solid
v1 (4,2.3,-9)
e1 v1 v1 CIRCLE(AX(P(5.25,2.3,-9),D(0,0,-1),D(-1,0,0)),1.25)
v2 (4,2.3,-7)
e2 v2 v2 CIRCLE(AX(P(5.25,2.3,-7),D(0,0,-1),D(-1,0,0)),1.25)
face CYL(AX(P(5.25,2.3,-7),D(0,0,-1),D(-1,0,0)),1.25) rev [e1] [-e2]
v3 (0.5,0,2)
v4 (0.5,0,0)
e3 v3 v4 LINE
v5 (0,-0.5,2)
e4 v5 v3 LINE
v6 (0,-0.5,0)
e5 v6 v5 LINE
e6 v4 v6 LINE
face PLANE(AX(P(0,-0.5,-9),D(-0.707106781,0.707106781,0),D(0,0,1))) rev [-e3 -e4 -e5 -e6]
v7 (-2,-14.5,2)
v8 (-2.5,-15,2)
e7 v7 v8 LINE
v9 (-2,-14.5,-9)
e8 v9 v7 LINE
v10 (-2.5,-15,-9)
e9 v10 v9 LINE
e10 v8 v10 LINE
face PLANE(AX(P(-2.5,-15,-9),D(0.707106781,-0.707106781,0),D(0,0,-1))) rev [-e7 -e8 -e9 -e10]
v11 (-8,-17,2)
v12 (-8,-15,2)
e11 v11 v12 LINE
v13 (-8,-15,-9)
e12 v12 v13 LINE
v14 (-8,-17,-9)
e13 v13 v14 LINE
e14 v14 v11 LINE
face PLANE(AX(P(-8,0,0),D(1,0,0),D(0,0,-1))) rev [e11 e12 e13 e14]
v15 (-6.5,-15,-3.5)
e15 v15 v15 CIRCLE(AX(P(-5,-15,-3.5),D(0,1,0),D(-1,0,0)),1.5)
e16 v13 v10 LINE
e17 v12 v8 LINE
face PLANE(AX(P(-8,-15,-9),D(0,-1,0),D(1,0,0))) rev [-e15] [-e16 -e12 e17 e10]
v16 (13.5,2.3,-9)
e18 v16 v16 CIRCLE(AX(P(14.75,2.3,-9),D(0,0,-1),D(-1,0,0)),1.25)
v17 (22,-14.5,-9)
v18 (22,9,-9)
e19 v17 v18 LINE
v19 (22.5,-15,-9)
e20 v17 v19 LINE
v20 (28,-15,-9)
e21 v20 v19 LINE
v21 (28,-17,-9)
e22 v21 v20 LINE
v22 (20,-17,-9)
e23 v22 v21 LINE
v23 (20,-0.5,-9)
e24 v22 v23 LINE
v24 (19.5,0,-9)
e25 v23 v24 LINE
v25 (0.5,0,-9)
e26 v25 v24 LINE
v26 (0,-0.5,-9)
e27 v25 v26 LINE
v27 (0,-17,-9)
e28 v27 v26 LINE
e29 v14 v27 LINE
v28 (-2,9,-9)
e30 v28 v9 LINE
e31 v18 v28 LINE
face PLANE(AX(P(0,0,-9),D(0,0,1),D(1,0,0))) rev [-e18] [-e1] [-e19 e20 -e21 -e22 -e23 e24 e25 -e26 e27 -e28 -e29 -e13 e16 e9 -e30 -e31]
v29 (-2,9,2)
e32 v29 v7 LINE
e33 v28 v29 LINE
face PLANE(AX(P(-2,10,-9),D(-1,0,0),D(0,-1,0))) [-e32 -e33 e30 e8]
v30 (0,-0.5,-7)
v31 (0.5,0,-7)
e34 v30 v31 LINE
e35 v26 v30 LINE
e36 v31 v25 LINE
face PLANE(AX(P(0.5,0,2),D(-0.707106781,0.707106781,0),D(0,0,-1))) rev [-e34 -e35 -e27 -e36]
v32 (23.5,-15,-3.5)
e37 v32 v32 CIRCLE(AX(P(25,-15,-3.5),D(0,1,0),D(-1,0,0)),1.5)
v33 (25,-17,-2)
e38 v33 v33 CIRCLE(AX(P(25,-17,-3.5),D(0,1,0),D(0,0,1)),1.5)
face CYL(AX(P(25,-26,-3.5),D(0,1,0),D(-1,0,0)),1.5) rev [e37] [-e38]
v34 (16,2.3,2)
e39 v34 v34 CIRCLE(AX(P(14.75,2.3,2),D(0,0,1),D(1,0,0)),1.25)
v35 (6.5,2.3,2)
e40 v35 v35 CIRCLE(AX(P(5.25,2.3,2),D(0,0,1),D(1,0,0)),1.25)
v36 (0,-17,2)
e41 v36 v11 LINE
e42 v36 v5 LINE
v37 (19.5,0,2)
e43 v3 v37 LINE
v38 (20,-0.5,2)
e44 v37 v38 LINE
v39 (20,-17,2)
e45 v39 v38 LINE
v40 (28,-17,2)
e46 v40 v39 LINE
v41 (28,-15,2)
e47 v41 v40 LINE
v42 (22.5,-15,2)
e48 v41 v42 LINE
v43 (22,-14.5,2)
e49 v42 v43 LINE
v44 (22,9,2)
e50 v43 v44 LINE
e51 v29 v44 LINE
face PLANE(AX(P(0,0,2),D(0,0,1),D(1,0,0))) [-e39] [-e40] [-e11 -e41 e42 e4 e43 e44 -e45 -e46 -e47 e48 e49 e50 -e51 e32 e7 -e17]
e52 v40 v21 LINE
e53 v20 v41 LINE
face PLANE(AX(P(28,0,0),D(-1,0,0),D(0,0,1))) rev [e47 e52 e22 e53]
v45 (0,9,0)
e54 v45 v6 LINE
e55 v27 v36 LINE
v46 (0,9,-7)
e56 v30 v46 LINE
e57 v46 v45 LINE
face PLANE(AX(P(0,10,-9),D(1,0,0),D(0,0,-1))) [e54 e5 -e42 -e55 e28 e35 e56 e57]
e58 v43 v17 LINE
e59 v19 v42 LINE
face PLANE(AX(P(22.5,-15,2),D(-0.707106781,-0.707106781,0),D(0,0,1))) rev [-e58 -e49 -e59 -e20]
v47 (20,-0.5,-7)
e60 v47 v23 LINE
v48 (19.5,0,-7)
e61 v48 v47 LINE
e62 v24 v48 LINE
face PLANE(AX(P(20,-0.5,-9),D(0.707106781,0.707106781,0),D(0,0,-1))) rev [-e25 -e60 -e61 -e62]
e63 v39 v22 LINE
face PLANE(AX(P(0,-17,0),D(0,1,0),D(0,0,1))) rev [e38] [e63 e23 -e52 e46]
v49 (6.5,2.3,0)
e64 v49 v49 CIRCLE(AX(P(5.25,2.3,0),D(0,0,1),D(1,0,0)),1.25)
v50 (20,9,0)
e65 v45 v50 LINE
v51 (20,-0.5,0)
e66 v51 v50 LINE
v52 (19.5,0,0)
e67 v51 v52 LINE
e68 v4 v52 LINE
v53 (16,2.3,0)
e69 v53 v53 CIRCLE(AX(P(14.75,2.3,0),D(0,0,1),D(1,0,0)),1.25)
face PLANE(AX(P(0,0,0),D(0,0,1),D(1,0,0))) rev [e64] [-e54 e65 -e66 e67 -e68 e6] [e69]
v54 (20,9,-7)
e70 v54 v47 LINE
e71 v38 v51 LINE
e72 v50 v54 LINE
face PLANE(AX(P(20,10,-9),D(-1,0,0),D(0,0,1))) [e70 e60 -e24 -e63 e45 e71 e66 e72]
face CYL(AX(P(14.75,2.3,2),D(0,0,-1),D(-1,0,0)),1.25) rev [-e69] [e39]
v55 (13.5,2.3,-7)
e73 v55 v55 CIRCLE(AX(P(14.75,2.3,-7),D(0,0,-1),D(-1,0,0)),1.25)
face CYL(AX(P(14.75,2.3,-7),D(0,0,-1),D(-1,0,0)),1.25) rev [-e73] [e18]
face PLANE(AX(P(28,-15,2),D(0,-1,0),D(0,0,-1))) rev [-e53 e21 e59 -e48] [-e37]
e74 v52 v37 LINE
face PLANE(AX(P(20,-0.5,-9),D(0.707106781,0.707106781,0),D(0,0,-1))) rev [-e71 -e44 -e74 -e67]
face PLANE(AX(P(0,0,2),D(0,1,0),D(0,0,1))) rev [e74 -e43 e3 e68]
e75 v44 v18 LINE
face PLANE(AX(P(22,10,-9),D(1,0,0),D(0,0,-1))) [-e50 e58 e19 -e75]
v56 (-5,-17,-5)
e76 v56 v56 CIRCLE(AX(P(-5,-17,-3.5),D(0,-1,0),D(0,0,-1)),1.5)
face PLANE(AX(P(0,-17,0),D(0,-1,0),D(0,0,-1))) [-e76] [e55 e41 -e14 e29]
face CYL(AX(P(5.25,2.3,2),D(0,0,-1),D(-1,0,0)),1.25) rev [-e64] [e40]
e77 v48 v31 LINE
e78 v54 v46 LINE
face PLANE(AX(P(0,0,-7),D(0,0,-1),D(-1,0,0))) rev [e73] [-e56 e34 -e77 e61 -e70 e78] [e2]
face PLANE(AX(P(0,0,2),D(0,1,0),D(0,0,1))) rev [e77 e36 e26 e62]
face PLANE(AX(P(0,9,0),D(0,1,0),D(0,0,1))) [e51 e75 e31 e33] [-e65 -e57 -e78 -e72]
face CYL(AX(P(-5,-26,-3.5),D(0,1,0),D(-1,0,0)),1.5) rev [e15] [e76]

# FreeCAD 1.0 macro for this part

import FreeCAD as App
import Part
import Sketcher

V = App.Vector
Q = App.Units.Quantity


def edges_at(feature, points):
    """Names of the edges that pass closest to the given points."""
    edges = feature.Shape.Edges
    near = lambda p: min(range(len(edges)), key=lambda i: edges[i].distToShape(Part.Vertex(*p))[0])
    return sorted({f"Edge{near(p) + 1}" for p in points})

doc = App.newDocument("Part")
body = doc.addObject("PartDesign::Body", "Body")

sketch1 = body.newObject("Sketcher::SketchObject", "Sketch")
sketch1.AttachmentSupport = (doc.getObject("XY_Plane"), [""])
sketch1.MapMode = "FlatFace"
sketch1.addGeometry(Part.LineSegment(V(0, 10, 0), V(0, 0, 0)), False)
sketch1.addGeometry(Part.LineSegment(V(0, 0, 0), V(20, 0, 0)), False)
sketch1.addGeometry(Part.LineSegment(V(20, 0, 0), V(20, 10, 0)), False)
sketch1.addGeometry(Part.LineSegment(V(20, 10, 0), V(0, 10, 0)), False)
sketch1.addGeometry(Part.Circle(V(5.25, 2.3, 0), V(0, 0, 1), 1.25), False)
sketch1.addGeometry(Part.Circle(V(14.75, 2.3, 0), V(0, 0, 1), 1.25), False)
sketch1.addConstraint(Sketcher.Constraint("Coincident", 0, 2, 1, 1))
sketch1.addConstraint(Sketcher.Constraint("Coincident", 1, 2, 2, 1))
sketch1.addConstraint(Sketcher.Constraint("Coincident", 2, 2, 3, 1))
sketch1.addConstraint(Sketcher.Constraint("Coincident", 3, 2, 0, 1))
sketch1.addConstraint(Sketcher.Constraint("Vertical", 0))
sketch1.addConstraint(Sketcher.Constraint("Horizontal", 1))
sketch1.addConstraint(Sketcher.Constraint("Vertical", 2))
sketch1.addConstraint(Sketcher.Constraint("Horizontal", 3))
sketch1.addConstraint(Sketcher.Constraint("Coincident", 0, 2, -1, 1))
sketch1.addConstraint(Sketcher.Constraint("Equal", 4, 5))
sketch1.addConstraint(Sketcher.Constraint("Horizontal", 4, 3, 5, 3))
sketch1.addConstraint(Sketcher.Constraint("Diameter", 4, Q("2.5 mm")))
sketch1.addConstraint(Sketcher.Constraint("DistanceX", 1, 1, 1, 2, Q("20 mm")))
sketch1.addConstraint(Sketcher.Constraint("DistanceY", 0, 2, 0, 1, Q("10 mm")))
sketch1.addConstraint(Sketcher.Constraint("DistanceY", -1, 1, 4, 3, Q("2.3 mm")))
sketch1.addConstraint(Sketcher.Constraint("DistanceX", 4, 3, 5, 3, Q("9.5 mm")))
sketch1.addConstraint(Sketcher.Constraint("DistanceX", -1, 1, 4, 3, Q("5.25 mm")))
pad1 = body.newObject("PartDesign::Pad", "Pad")
pad1.Profile = sketch1
pad1.Length = 2

sketch2 = body.newObject("Sketcher::SketchObject", "Sketch001")
sketch2.AttachmentSupport = (doc.getObject("XY_Plane"), [""])
sketch2.MapMode = "FlatFace"
sketch2.AttachmentOffset = App.Placement(V(0, 0, 2), App.Rotation())
sketch2.addGeometry(Part.LineSegment(V(-2, 10, 0), V(-2, 0, 0)), False)
sketch2.addGeometry(Part.LineSegment(V(-2, 0, 0), V(0, 0, 0)), False)
sketch2.addGeometry(Part.LineSegment(V(0, 0, 0), V(0, 10, 0)), False)
sketch2.addGeometry(Part.LineSegment(V(0, 10, 0), V(-2, 10, 0)), False)
sketch2.addGeometry(Part.LineSegment(V(20, 10, 0), V(20, 0, 0)), False)
sketch2.addGeometry(Part.LineSegment(V(20, 0, 0), V(22, 0, 0)), False)
sketch2.addGeometry(Part.LineSegment(V(22, 0, 0), V(22, 10, 0)), False)
sketch2.addGeometry(Part.LineSegment(V(22, 10, 0), V(20, 10, 0)), False)
sketch2.addConstraint(Sketcher.Constraint("Coincident", 0, 2, 1, 1))
sketch2.addConstraint(Sketcher.Constraint("Coincident", 1, 2, 2, 1))
sketch2.addConstraint(Sketcher.Constraint("Coincident", 2, 2, 3, 1))
sketch2.addConstraint(Sketcher.Constraint("Coincident", 3, 2, 0, 1))
sketch2.addConstraint(Sketcher.Constraint("Coincident", 4, 2, 5, 1))
sketch2.addConstraint(Sketcher.Constraint("Coincident", 5, 2, 6, 1))
sketch2.addConstraint(Sketcher.Constraint("Coincident", 6, 2, 7, 1))
sketch2.addConstraint(Sketcher.Constraint("Coincident", 7, 2, 4, 1))
sketch2.addConstraint(Sketcher.Constraint("Vertical", 0))
sketch2.addConstraint(Sketcher.Constraint("Horizontal", 1))
sketch2.addConstraint(Sketcher.Constraint("Vertical", 2))
sketch2.addConstraint(Sketcher.Constraint("Horizontal", 3))
sketch2.addConstraint(Sketcher.Constraint("Vertical", 4))
sketch2.addConstraint(Sketcher.Constraint("Horizontal", 5))
sketch2.addConstraint(Sketcher.Constraint("Vertical", 6))
sketch2.addConstraint(Sketcher.Constraint("Horizontal", 7))
sketch2.addConstraint(Sketcher.Constraint("Coincident", 1, 2, -1, 1))
sketch2.addConstraint(Sketcher.Constraint("PointOnObject", 4, 2, -1))
sketch2.addConstraint(Sketcher.Constraint("Horizontal", 3, 2, 6, 2))
sketch2.addConstraint(Sketcher.Constraint("Equal", 3, 5))
sketch2.addConstraint(Sketcher.Constraint("DistanceX", 1, 1, 1, 2, Q("2 mm")))
sketch2.addConstraint(Sketcher.Constraint("DistanceY", 0, 2, 0, 1, Q("10 mm")))
sketch2.addConstraint(Sketcher.Constraint("DistanceX", -1, 1, 4, 2, Q("20 mm")))
pad2 = body.newObject("PartDesign::Pad", "Pad001")
pad2.Profile = sketch2
pad2.Length = 11
pad2.Reversed = True
body2 = doc.addObject("PartDesign::Body", "Body001")

sketch3 = body2.newObject("Sketcher::SketchObject", "Sketch002")
sketch3.AttachmentSupport = (doc.getObject("XY_Plane001"), [""])
sketch3.MapMode = "FlatFace"
sketch3.AttachmentOffset = App.Placement(V(0, 0, -9), App.Rotation())
sketch3.addGeometry(Part.LineSegment(V(20, 10, 0), V(20, 0, 0)), False)
sketch3.addGeometry(Part.LineSegment(V(20, 0, 0), V(0, 0, 0)), False)
sketch3.addGeometry(Part.LineSegment(V(0, 0, 0), V(0, 10, 0)), False)
sketch3.addGeometry(Part.LineSegment(V(0, 10, 0), V(20, 10, 0)), False)
sketch3.addGeometry(Part.Circle(V(14.75, 2.3, 0), V(0, 0, 1), 1.25), False)
sketch3.addGeometry(Part.Circle(V(5.25, 2.3, 0), V(0, 0, 1), 1.25), False)
sketch3.addConstraint(Sketcher.Constraint("Coincident", 0, 2, 1, 1))
sketch3.addConstraint(Sketcher.Constraint("Coincident", 1, 2, 2, 1))
sketch3.addConstraint(Sketcher.Constraint("Coincident", 2, 2, 3, 1))
sketch3.addConstraint(Sketcher.Constraint("Coincident", 3, 2, 0, 1))
sketch3.addConstraint(Sketcher.Constraint("Vertical", 0))
sketch3.addConstraint(Sketcher.Constraint("Horizontal", 1))
sketch3.addConstraint(Sketcher.Constraint("Vertical", 2))
sketch3.addConstraint(Sketcher.Constraint("Horizontal", 3))
sketch3.addConstraint(Sketcher.Constraint("Coincident", 1, 2, -1, 1))
sketch3.addConstraint(Sketcher.Constraint("Equal", 4, 5))
sketch3.addConstraint(Sketcher.Constraint("Horizontal", 4, 3, 5, 3))
sketch3.addConstraint(Sketcher.Constraint("Diameter", 4, Q("2.5 mm")))
sketch3.addConstraint(Sketcher.Constraint("DistanceX", 1, 2, 1, 1, Q("20 mm")))
sketch3.addConstraint(Sketcher.Constraint("DistanceY", 0, 2, 0, 1, Q("10 mm")))
sketch3.addConstraint(Sketcher.Constraint("DistanceY", -1, 1, 4, 3, Q("2.3 mm")))
sketch3.addConstraint(Sketcher.Constraint("DistanceX", 5, 3, 4, 3, Q("9.5 mm")))
sketch3.addConstraint(Sketcher.Constraint("DistanceX", -1, 1, 4, 3, Q("14.75 mm")))
pad3 = body2.newObject("PartDesign::Pad", "Pad002")
pad3.Profile = sketch3
pad3.Length = 2
doc.recompute()

boolean = body.newObject("PartDesign::Boolean", "Boolean")
boolean.Type = "Fuse"
boolean.addObjects([body2])

sketch4 = body.newObject("Sketcher::SketchObject", "Sketch003")
sketch4.AttachmentSupport = (doc.getObject("XZ_Plane"), [""])
sketch4.MapMode = "FlatFace"
sketch4.addGeometry(Part.LineSegment(V(-2, 2, 0), V(-2, -9, 0)), False)
sketch4.addGeometry(Part.LineSegment(V(-2, -9, 0), V(0, -9, 0)), False)
sketch4.addGeometry(Part.LineSegment(V(0, -9, 0), V(0, 2, 0)), False)
sketch4.addGeometry(Part.LineSegment(V(0, 2, 0), V(-2, 2, 0)), False)
sketch4.addGeometry(Part.LineSegment(V(20, 2, 0), V(20, -9, 0)), False)
sketch4.addGeometry(Part.LineSegment(V(20, -9, 0), V(22, -9, 0)), False)
sketch4.addGeometry(Part.LineSegment(V(22, -9, 0), V(22, 2, 0)), False)
sketch4.addGeometry(Part.LineSegment(V(22, 2, 0), V(20, 2, 0)), False)
sketch4.addConstraint(Sketcher.Constraint("Coincident", 0, 2, 1, 1))
sketch4.addConstraint(Sketcher.Constraint("Coincident", 1, 2, 2, 1))
sketch4.addConstraint(Sketcher.Constraint("Coincident", 2, 2, 3, 1))
sketch4.addConstraint(Sketcher.Constraint("Coincident", 3, 2, 0, 1))
sketch4.addConstraint(Sketcher.Constraint("Coincident", 4, 2, 5, 1))
sketch4.addConstraint(Sketcher.Constraint("Coincident", 5, 2, 6, 1))
sketch4.addConstraint(Sketcher.Constraint("Coincident", 6, 2, 7, 1))
sketch4.addConstraint(Sketcher.Constraint("Coincident", 7, 2, 4, 1))
sketch4.addConstraint(Sketcher.Constraint("Vertical", 0))
sketch4.addConstraint(Sketcher.Constraint("Horizontal", 1))
sketch4.addConstraint(Sketcher.Constraint("Vertical", 2))
sketch4.addConstraint(Sketcher.Constraint("Horizontal", 3))
sketch4.addConstraint(Sketcher.Constraint("Vertical", 4))
sketch4.addConstraint(Sketcher.Constraint("Horizontal", 5))
sketch4.addConstraint(Sketcher.Constraint("Vertical", 6))
sketch4.addConstraint(Sketcher.Constraint("Horizontal", 7))
sketch4.addConstraint(Sketcher.Constraint("PointOnObject", 1, 2, -2))
sketch4.addConstraint(Sketcher.Constraint("Horizontal", 1, 2, 4, 2))
sketch4.addConstraint(Sketcher.Constraint("Horizontal", 3, 2, 6, 2))
sketch4.addConstraint(Sketcher.Constraint("Equal", 3, 5))
sketch4.addConstraint(Sketcher.Constraint("DistanceX", 1, 1, 1, 2, Q("2 mm")))
sketch4.addConstraint(Sketcher.Constraint("DistanceY", 0, 2, 0, 1, Q("11 mm")))
sketch4.addConstraint(Sketcher.Constraint("DistanceY", 0, 2, -1, 1, Q("9 mm")))
sketch4.addConstraint(Sketcher.Constraint("DistanceX", -1, 1, 4, 2, Q("20 mm")))
pad4 = body.newObject("PartDesign::Pad", "Pad003")
pad4.Profile = sketch4
pad4.Length = 17

sketch5 = body.newObject("Sketcher::SketchObject", "Sketch004")
sketch5.AttachmentSupport = (doc.getObject("YZ_Plane"), [""])
sketch5.MapMode = "FlatFace"
sketch5.AttachmentOffset = App.Placement(V(0, 0, 22), App.Rotation())
sketch5.addGeometry(Part.LineSegment(V(-15, 2, 0), V(-17, 2, 0)), False)
sketch5.addGeometry(Part.LineSegment(V(-17, 2, 0), V(-17, -9, 0)), False)
sketch5.addGeometry(Part.LineSegment(V(-17, -9, 0), V(-15, -9, 0)), False)
sketch5.addGeometry(Part.LineSegment(V(-15, -9, 0), V(-15, 2, 0)), False)
sketch5.addConstraint(Sketcher.Constraint("Coincident", 0, 2, 1, 1))
sketch5.addConstraint(Sketcher.Constraint("Coincident", 1, 2, 2, 1))
sketch5.addConstraint(Sketcher.Constraint("Coincident", 2, 2, 3, 1))
sketch5.addConstraint(Sketcher.Constraint("Coincident", 3, 2, 0, 1))
sketch5.addConstraint(Sketcher.Constraint("Horizontal", 0))
sketch5.addConstraint(Sketcher.Constraint("Vertical", 1))
sketch5.addConstraint(Sketcher.Constraint("Horizontal", 2))
sketch5.addConstraint(Sketcher.Constraint("Vertical", 3))
sketch5.addConstraint(Sketcher.Constraint("DistanceX", 0, 2, 0, 1, Q("2 mm")))
sketch5.addConstraint(Sketcher.Constraint("DistanceY", 1, 2, 1, 1, Q("11 mm")))
sketch5.addConstraint(Sketcher.Constraint("DistanceX", 0, 2, -1, 1, Q("17 mm")))
sketch5.addConstraint(Sketcher.Constraint("DistanceY", -1, 1, 0, 2, Q("2 mm")))
pad5 = body.newObject("PartDesign::Pad", "Pad004")
pad5.Profile = sketch5
pad5.Length = 6

sketch6 = body.newObject("Sketcher::SketchObject", "Sketch005")
sketch6.AttachmentSupport = (doc.getObject("YZ_Plane"), [""])
sketch6.MapMode = "FlatFace"
sketch6.AttachmentOffset = App.Placement(V(0, 0, -2), App.Rotation())
sketch6.addGeometry(Part.LineSegment(V(-15, -9, 0), V(-17, -9, 0)), False)
sketch6.addGeometry(Part.LineSegment(V(-17, -9, 0), V(-17, 2, 0)), False)
sketch6.addGeometry(Part.LineSegment(V(-17, 2, 0), V(-15, 2, 0)), False)
sketch6.addGeometry(Part.LineSegment(V(-15, 2, 0), V(-15, -9, 0)), False)
sketch6.addConstraint(Sketcher.Constraint("Coincident", 0, 2, 1, 1))
sketch6.addConstraint(Sketcher.Constraint("Coincident", 1, 2, 2, 1))
sketch6.addConstraint(Sketcher.Constraint("Coincident", 2, 2, 3, 1))
sketch6.addConstraint(Sketcher.Constraint("Coincident", 3, 2, 0, 1))
sketch6.addConstraint(Sketcher.Constraint("Horizontal", 0))
sketch6.addConstraint(Sketcher.Constraint("Vertical", 1))
sketch6.addConstraint(Sketcher.Constraint("Horizontal", 2))
sketch6.addConstraint(Sketcher.Constraint("Vertical", 3))
sketch6.addConstraint(Sketcher.Constraint("DistanceX", 0, 2, 0, 1, Q("2 mm")))
sketch6.addConstraint(Sketcher.Constraint("DistanceY", 1, 1, 1, 2, Q("11 mm")))
sketch6.addConstraint(Sketcher.Constraint("DistanceX", 0, 2, -1, 1, Q("17 mm")))
sketch6.addConstraint(Sketcher.Constraint("DistanceY", 0, 2, -1, 1, Q("9 mm")))
pad6 = body.newObject("PartDesign::Pad", "Pad005")
pad6.Profile = sketch6
pad6.Length = 6
pad6.Reversed = True

sketch7 = body.newObject("Sketcher::SketchObject", "Sketch006")
sketch7.AttachmentSupport = (doc.getObject("XZ_Plane"), [""])
sketch7.MapMode = "FlatFace"
sketch7.AttachmentOffset = App.Placement(V(0, 0, -10), App.Rotation())
sketch7.addGeometry(Part.LineSegment(V(-2, -9, 0), V(-2, 2, 0)), False)
sketch7.addGeometry(Part.LineSegment(V(-2, 2, 0), V(22, 2, 0)), False)
sketch7.addGeometry(Part.LineSegment(V(22, 2, 0), V(22, -9, 0)), False)
sketch7.addGeometry(Part.LineSegment(V(22, -9, 0), V(-2, -9, 0)), False)
sketch7.addGeometry(Part.LineSegment(V(20, 0, 0), V(0, 0, 0)), False)
sketch7.addGeometry(Part.LineSegment(V(0, 0, 0), V(0, -7, 0)), False)
sketch7.addGeometry(Part.LineSegment(V(0, -7, 0), V(20, -7, 0)), False)
sketch7.addGeometry(Part.LineSegment(V(20, -7, 0), V(20, 0, 0)), False)
sketch7.addConstraint(Sketcher.Constraint("Coincident", 0, 2, 1, 1))
sketch7.addConstraint(Sketcher.Constraint("Coincident", 1, 2, 2, 1))
sketch7.addConstraint(Sketcher.Constraint("Coincident", 2, 2, 3, 1))
sketch7.addConstraint(Sketcher.Constraint("Coincident", 3, 2, 0, 1))
sketch7.addConstraint(Sketcher.Constraint("Coincident", 4, 2, 5, 1))
sketch7.addConstraint(Sketcher.Constraint("Coincident", 5, 2, 6, 1))
sketch7.addConstraint(Sketcher.Constraint("Coincident", 6, 2, 7, 1))
sketch7.addConstraint(Sketcher.Constraint("Coincident", 7, 2, 4, 1))
sketch7.addConstraint(Sketcher.Constraint("Vertical", 0))
sketch7.addConstraint(Sketcher.Constraint("Horizontal", 1))
sketch7.addConstraint(Sketcher.Constraint("Vertical", 2))
sketch7.addConstraint(Sketcher.Constraint("Horizontal", 3))
sketch7.addConstraint(Sketcher.Constraint("Horizontal", 4))
sketch7.addConstraint(Sketcher.Constraint("Vertical", 5))
sketch7.addConstraint(Sketcher.Constraint("Horizontal", 6))
sketch7.addConstraint(Sketcher.Constraint("Vertical", 7))
sketch7.addConstraint(Sketcher.Constraint("Coincident", 4, 2, -1, 1))
sketch7.addConstraint(Sketcher.Constraint("DistanceX", 1, 1, 1, 2, Q("24 mm")))
sketch7.addConstraint(Sketcher.Constraint("DistanceX", 4, 2, 4, 1, Q("20 mm")))
sketch7.addConstraint(Sketcher.Constraint("DistanceY", 0, 1, 0, 2, Q("11 mm")))
sketch7.addConstraint(Sketcher.Constraint("DistanceY", 5, 2, 5, 1, Q("7 mm")))
sketch7.addConstraint(Sketcher.Constraint("DistanceX", 0, 2, -1, 1, Q("2 mm")))
sketch7.addConstraint(Sketcher.Constraint("DistanceY", -1, 1, 0, 2, Q("2 mm")))
pocket1 = body.newObject("PartDesign::Pocket", "Pocket")
pocket1.Profile = sketch7
pocket1.Length = 1
pocket1.Reversed = True

sketch8 = body.newObject("Sketcher::SketchObject", "Sketch007")
sketch8.AttachmentSupport = (doc.getObject("XZ_Plane"), [""])
sketch8.MapMode = "FlatFace"
sketch8.AttachmentOffset = App.Placement(V(0, 0, 15), App.Rotation())
sketch8.addGeometry(Part.Circle(V(-5, -3.5, 0), V(0, 0, 1), 1.5), False)
sketch8.addGeometry(Part.Circle(V(25, -3.5, 0), V(0, 0, 1), 1.5), False)
sketch8.addConstraint(Sketcher.Constraint("Equal", 0, 1))
sketch8.addConstraint(Sketcher.Constraint("Horizontal", 0, 3, 1, 3))
sketch8.addConstraint(Sketcher.Constraint("Diameter", 0, Q("3 mm")))
sketch8.addConstraint(Sketcher.Constraint("DistanceX", 0, 3, -1, 1, Q("5 mm")))
sketch8.addConstraint(Sketcher.Constraint("DistanceX", -1, 1, 1, 3, Q("25 mm")))
sketch8.addConstraint(Sketcher.Constraint("DistanceY", 0, 3, -1, 1, Q("3.5 mm")))
pocket2 = body.newObject("PartDesign::Pocket", "Pocket001")
pocket2.Profile = sketch8
pocket2.Length = 11
pocket2.Reversed = True
doc.recompute()

chamfer = body.newObject("PartDesign::Chamfer", "Chamfer")
chamfer.Base = (pocket2, edges_at(pocket2, [
    (-2, -15, -3.5),
    (0, 0, 1),
    (0, 0, -8),
    (20, 0, 1),
    (20, 0, -8),
    (22, -15, -3.5),
]))
chamfer.Size = 0.5

doc.recompute()
